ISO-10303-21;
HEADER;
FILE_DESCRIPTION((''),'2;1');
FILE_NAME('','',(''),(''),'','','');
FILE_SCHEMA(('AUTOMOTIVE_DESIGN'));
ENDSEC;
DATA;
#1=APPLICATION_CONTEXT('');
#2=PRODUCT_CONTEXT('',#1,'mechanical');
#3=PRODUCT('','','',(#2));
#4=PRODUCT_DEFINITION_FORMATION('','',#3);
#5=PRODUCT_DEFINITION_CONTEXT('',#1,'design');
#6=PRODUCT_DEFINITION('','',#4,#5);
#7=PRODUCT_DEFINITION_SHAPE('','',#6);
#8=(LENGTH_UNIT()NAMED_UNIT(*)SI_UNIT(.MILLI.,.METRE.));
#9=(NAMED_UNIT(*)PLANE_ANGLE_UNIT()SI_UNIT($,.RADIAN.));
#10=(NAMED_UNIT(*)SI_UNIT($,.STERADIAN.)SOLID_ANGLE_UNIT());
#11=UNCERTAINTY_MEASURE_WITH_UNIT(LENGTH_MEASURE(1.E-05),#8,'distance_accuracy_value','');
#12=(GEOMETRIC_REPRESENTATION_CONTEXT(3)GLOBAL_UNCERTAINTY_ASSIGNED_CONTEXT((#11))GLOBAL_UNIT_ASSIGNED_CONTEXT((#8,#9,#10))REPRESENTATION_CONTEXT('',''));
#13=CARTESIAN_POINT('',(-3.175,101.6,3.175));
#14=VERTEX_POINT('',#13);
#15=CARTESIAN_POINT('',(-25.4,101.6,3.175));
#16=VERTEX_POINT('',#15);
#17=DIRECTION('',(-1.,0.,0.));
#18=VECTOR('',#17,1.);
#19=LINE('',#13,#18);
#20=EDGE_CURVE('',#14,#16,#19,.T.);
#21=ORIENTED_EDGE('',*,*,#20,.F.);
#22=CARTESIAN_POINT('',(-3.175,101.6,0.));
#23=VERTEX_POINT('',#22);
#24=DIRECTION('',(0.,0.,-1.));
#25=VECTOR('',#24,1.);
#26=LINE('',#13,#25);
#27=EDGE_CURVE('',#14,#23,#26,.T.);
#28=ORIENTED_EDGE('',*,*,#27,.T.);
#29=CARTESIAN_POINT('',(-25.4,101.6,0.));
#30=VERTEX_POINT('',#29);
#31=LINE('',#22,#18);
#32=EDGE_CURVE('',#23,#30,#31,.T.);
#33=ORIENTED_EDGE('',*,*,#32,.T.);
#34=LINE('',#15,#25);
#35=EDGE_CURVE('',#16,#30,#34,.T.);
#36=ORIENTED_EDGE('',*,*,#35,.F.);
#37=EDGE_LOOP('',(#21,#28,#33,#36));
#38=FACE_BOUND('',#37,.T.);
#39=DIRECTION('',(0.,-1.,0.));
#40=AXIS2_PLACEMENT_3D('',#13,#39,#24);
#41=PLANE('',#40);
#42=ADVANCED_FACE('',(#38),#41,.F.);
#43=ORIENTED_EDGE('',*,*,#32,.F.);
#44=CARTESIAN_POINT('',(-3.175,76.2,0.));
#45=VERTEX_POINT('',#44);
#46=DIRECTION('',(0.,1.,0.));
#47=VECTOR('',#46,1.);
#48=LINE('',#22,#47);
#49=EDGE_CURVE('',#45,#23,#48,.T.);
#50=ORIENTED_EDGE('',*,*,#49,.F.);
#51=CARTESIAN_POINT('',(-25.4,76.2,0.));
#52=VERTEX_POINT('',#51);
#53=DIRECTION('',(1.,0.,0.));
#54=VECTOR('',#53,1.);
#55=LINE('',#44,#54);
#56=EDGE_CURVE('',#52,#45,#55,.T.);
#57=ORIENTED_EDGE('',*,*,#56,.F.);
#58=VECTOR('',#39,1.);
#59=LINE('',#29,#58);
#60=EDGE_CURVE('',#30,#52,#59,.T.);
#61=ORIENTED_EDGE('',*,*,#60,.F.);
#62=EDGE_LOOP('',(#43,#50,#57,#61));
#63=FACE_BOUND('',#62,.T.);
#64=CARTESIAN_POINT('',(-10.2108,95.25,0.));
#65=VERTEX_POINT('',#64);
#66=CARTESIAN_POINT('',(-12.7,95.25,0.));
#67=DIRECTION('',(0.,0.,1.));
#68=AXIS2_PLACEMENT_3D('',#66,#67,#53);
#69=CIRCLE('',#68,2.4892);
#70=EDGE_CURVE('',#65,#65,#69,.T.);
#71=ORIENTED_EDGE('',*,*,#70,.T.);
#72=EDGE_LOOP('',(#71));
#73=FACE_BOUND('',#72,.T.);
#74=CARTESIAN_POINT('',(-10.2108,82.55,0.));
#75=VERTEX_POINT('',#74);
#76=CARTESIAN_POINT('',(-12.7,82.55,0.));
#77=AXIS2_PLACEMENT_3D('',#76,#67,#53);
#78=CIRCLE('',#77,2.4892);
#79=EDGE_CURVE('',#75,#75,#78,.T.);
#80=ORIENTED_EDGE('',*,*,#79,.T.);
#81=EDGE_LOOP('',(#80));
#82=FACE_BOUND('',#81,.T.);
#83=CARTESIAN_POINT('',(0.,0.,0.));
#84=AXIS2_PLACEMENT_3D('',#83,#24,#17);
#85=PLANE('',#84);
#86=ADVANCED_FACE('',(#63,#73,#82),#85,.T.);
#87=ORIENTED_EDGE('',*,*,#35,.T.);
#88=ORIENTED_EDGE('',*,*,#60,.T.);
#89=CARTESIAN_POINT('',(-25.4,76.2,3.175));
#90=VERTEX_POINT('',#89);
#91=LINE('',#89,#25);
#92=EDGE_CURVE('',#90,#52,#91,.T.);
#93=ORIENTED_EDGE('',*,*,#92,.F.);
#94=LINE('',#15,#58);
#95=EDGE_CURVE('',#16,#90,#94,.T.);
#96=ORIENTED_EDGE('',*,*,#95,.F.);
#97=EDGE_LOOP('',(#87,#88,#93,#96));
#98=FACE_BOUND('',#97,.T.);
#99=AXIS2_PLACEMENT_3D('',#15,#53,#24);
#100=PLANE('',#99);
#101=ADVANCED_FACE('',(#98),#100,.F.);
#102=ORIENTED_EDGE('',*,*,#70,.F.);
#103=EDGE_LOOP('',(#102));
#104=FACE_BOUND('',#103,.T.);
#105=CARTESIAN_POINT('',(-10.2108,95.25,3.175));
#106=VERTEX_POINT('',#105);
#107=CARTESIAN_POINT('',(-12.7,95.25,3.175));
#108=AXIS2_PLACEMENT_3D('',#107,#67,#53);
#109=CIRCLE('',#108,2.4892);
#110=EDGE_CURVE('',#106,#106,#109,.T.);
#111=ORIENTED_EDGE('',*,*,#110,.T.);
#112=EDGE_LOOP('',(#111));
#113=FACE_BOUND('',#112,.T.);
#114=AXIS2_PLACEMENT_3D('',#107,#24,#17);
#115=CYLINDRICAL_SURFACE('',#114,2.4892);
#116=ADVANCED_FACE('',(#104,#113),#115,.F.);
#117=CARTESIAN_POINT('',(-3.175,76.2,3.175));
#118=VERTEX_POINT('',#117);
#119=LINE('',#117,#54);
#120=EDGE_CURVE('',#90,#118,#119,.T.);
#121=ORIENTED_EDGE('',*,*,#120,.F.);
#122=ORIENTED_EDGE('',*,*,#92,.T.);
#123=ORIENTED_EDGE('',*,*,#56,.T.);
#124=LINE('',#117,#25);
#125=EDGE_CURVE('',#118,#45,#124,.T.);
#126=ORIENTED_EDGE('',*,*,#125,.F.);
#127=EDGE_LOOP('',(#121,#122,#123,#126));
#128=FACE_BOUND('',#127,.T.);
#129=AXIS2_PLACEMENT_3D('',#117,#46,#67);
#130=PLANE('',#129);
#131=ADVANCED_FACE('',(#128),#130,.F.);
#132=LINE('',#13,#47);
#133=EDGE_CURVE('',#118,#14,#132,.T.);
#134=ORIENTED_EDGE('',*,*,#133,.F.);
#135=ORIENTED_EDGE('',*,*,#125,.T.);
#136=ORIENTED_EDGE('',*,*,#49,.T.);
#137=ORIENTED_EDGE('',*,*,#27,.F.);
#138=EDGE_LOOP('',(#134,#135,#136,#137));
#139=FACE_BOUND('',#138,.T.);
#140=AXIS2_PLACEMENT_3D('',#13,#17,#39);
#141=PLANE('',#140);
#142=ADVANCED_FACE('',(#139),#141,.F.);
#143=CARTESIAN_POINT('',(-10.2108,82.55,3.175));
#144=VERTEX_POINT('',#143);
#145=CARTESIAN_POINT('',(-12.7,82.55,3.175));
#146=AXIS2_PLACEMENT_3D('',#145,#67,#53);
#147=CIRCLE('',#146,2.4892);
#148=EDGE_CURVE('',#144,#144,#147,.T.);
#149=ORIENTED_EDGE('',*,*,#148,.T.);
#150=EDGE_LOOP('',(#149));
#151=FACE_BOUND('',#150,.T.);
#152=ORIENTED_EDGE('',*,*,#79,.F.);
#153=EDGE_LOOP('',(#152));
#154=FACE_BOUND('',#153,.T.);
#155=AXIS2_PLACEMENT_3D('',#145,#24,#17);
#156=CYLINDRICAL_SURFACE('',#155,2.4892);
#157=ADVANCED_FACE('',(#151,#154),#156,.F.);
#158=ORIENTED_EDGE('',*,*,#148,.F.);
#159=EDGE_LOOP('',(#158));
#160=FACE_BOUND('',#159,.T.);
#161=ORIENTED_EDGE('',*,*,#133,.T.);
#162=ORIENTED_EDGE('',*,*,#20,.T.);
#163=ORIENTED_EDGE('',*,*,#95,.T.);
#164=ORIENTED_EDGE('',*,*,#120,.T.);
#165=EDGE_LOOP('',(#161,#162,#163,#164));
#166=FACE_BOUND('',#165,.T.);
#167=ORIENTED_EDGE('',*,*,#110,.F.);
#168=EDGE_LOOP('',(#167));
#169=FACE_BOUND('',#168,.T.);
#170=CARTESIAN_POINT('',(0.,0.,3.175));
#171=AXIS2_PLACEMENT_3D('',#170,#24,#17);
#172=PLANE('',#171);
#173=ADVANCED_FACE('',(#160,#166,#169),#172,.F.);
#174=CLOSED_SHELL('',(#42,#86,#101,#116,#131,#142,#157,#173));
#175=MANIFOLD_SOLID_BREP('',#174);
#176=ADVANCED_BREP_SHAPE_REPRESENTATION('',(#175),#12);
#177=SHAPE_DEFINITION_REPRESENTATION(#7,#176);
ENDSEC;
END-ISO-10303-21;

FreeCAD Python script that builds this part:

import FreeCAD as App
import Part
import Sketcher

V = App.Vector
Q = App.Units.Quantity


def add_polygon(sketch, points):
    """Adds a closed chain of lines whose ends are joined by coincident constraints."""
    first, n = sketch.GeometryCount, len(points)
    for a, b in zip(points, points[1:] + points[:1]):
        sketch.addGeometry(Part.LineSegment(App.Vector(*a, 0), App.Vector(*b, 0)), False)
    for i in range(n):
        sketch.addConstraint(Sketcher.Constraint("Coincident", first + i, 2, first + (i + 1) % n, 1))

doc = App.newDocument("Part")
body = doc.addObject("PartDesign::Body", "Body")

sketch1 = body.newObject("Sketcher::SketchObject", "Sketch")
sketch1.AttachmentSupport = (doc.getObject("XY_Plane"), [""])
sketch1.MapMode = "FlatFace"
add_polygon(sketch1, [(-25.4, 101.6), (-25.4, 76.2), (-3.2, 76.2), (-3.2, 101.6)])
sketch1.addGeometry(Part.Circle(V(-12.7, 82.5, 0), V(0, 0, 1), 2.5), False)
sketch1.addGeometry(Part.Circle(V(-12.7, 95.2, 0), V(0, 0, 1), 2.5), False)
sketch1.addConstraint(Sketcher.Constraint("Vertical", 0))
sketch1.addConstraint(Sketcher.Constraint("Horizontal", 1))
sketch1.addConstraint(Sketcher.Constraint("Vertical", 2))
sketch1.addConstraint(Sketcher.Constraint("Horizontal", 3))
sketch1.addConstraint(Sketcher.Constraint("Equal", 4, 5))
sketch1.addConstraint(Sketcher.Constraint("Vertical", 4, 3, 5, 3))
sketch1.addConstraint(Sketcher.Constraint("DistanceY", 0, 2, 0, 1, Q("1 in")))
sketch1.addConstraint(Sketcher.Constraint("Diameter", 4, Q("0.196 in")))
sketch1.addConstraint(Sketcher.Constraint("DistanceX", 0, 2, -1, 1, Q("1 in")))
sketch1.addConstraint(Sketcher.Constraint("DistanceY", -1, 1, 0, 2, Q("3 in")))
sketch1.addConstraint(Sketcher.Constraint("DistanceX", 4, 3, -1, 1, Q("0.5 in")))
sketch1.addConstraint(Sketcher.Constraint("DistanceY", 4, 3, 5, 3, Q("0.5 in")))
sketch1.addConstraint(Sketcher.Constraint("DistanceX", 1, 1, 1, 2, Q("0.875 in")))
sketch1.addConstraint(Sketcher.Constraint("DistanceY", -1, 1, 4, 3, Q("3.25 in")))
pad1 = body.newObject("PartDesign::Pad", "Pad")
pad1.Profile = sketch1
pad1.Length = Q("0.125 in")

doc.recompute()
